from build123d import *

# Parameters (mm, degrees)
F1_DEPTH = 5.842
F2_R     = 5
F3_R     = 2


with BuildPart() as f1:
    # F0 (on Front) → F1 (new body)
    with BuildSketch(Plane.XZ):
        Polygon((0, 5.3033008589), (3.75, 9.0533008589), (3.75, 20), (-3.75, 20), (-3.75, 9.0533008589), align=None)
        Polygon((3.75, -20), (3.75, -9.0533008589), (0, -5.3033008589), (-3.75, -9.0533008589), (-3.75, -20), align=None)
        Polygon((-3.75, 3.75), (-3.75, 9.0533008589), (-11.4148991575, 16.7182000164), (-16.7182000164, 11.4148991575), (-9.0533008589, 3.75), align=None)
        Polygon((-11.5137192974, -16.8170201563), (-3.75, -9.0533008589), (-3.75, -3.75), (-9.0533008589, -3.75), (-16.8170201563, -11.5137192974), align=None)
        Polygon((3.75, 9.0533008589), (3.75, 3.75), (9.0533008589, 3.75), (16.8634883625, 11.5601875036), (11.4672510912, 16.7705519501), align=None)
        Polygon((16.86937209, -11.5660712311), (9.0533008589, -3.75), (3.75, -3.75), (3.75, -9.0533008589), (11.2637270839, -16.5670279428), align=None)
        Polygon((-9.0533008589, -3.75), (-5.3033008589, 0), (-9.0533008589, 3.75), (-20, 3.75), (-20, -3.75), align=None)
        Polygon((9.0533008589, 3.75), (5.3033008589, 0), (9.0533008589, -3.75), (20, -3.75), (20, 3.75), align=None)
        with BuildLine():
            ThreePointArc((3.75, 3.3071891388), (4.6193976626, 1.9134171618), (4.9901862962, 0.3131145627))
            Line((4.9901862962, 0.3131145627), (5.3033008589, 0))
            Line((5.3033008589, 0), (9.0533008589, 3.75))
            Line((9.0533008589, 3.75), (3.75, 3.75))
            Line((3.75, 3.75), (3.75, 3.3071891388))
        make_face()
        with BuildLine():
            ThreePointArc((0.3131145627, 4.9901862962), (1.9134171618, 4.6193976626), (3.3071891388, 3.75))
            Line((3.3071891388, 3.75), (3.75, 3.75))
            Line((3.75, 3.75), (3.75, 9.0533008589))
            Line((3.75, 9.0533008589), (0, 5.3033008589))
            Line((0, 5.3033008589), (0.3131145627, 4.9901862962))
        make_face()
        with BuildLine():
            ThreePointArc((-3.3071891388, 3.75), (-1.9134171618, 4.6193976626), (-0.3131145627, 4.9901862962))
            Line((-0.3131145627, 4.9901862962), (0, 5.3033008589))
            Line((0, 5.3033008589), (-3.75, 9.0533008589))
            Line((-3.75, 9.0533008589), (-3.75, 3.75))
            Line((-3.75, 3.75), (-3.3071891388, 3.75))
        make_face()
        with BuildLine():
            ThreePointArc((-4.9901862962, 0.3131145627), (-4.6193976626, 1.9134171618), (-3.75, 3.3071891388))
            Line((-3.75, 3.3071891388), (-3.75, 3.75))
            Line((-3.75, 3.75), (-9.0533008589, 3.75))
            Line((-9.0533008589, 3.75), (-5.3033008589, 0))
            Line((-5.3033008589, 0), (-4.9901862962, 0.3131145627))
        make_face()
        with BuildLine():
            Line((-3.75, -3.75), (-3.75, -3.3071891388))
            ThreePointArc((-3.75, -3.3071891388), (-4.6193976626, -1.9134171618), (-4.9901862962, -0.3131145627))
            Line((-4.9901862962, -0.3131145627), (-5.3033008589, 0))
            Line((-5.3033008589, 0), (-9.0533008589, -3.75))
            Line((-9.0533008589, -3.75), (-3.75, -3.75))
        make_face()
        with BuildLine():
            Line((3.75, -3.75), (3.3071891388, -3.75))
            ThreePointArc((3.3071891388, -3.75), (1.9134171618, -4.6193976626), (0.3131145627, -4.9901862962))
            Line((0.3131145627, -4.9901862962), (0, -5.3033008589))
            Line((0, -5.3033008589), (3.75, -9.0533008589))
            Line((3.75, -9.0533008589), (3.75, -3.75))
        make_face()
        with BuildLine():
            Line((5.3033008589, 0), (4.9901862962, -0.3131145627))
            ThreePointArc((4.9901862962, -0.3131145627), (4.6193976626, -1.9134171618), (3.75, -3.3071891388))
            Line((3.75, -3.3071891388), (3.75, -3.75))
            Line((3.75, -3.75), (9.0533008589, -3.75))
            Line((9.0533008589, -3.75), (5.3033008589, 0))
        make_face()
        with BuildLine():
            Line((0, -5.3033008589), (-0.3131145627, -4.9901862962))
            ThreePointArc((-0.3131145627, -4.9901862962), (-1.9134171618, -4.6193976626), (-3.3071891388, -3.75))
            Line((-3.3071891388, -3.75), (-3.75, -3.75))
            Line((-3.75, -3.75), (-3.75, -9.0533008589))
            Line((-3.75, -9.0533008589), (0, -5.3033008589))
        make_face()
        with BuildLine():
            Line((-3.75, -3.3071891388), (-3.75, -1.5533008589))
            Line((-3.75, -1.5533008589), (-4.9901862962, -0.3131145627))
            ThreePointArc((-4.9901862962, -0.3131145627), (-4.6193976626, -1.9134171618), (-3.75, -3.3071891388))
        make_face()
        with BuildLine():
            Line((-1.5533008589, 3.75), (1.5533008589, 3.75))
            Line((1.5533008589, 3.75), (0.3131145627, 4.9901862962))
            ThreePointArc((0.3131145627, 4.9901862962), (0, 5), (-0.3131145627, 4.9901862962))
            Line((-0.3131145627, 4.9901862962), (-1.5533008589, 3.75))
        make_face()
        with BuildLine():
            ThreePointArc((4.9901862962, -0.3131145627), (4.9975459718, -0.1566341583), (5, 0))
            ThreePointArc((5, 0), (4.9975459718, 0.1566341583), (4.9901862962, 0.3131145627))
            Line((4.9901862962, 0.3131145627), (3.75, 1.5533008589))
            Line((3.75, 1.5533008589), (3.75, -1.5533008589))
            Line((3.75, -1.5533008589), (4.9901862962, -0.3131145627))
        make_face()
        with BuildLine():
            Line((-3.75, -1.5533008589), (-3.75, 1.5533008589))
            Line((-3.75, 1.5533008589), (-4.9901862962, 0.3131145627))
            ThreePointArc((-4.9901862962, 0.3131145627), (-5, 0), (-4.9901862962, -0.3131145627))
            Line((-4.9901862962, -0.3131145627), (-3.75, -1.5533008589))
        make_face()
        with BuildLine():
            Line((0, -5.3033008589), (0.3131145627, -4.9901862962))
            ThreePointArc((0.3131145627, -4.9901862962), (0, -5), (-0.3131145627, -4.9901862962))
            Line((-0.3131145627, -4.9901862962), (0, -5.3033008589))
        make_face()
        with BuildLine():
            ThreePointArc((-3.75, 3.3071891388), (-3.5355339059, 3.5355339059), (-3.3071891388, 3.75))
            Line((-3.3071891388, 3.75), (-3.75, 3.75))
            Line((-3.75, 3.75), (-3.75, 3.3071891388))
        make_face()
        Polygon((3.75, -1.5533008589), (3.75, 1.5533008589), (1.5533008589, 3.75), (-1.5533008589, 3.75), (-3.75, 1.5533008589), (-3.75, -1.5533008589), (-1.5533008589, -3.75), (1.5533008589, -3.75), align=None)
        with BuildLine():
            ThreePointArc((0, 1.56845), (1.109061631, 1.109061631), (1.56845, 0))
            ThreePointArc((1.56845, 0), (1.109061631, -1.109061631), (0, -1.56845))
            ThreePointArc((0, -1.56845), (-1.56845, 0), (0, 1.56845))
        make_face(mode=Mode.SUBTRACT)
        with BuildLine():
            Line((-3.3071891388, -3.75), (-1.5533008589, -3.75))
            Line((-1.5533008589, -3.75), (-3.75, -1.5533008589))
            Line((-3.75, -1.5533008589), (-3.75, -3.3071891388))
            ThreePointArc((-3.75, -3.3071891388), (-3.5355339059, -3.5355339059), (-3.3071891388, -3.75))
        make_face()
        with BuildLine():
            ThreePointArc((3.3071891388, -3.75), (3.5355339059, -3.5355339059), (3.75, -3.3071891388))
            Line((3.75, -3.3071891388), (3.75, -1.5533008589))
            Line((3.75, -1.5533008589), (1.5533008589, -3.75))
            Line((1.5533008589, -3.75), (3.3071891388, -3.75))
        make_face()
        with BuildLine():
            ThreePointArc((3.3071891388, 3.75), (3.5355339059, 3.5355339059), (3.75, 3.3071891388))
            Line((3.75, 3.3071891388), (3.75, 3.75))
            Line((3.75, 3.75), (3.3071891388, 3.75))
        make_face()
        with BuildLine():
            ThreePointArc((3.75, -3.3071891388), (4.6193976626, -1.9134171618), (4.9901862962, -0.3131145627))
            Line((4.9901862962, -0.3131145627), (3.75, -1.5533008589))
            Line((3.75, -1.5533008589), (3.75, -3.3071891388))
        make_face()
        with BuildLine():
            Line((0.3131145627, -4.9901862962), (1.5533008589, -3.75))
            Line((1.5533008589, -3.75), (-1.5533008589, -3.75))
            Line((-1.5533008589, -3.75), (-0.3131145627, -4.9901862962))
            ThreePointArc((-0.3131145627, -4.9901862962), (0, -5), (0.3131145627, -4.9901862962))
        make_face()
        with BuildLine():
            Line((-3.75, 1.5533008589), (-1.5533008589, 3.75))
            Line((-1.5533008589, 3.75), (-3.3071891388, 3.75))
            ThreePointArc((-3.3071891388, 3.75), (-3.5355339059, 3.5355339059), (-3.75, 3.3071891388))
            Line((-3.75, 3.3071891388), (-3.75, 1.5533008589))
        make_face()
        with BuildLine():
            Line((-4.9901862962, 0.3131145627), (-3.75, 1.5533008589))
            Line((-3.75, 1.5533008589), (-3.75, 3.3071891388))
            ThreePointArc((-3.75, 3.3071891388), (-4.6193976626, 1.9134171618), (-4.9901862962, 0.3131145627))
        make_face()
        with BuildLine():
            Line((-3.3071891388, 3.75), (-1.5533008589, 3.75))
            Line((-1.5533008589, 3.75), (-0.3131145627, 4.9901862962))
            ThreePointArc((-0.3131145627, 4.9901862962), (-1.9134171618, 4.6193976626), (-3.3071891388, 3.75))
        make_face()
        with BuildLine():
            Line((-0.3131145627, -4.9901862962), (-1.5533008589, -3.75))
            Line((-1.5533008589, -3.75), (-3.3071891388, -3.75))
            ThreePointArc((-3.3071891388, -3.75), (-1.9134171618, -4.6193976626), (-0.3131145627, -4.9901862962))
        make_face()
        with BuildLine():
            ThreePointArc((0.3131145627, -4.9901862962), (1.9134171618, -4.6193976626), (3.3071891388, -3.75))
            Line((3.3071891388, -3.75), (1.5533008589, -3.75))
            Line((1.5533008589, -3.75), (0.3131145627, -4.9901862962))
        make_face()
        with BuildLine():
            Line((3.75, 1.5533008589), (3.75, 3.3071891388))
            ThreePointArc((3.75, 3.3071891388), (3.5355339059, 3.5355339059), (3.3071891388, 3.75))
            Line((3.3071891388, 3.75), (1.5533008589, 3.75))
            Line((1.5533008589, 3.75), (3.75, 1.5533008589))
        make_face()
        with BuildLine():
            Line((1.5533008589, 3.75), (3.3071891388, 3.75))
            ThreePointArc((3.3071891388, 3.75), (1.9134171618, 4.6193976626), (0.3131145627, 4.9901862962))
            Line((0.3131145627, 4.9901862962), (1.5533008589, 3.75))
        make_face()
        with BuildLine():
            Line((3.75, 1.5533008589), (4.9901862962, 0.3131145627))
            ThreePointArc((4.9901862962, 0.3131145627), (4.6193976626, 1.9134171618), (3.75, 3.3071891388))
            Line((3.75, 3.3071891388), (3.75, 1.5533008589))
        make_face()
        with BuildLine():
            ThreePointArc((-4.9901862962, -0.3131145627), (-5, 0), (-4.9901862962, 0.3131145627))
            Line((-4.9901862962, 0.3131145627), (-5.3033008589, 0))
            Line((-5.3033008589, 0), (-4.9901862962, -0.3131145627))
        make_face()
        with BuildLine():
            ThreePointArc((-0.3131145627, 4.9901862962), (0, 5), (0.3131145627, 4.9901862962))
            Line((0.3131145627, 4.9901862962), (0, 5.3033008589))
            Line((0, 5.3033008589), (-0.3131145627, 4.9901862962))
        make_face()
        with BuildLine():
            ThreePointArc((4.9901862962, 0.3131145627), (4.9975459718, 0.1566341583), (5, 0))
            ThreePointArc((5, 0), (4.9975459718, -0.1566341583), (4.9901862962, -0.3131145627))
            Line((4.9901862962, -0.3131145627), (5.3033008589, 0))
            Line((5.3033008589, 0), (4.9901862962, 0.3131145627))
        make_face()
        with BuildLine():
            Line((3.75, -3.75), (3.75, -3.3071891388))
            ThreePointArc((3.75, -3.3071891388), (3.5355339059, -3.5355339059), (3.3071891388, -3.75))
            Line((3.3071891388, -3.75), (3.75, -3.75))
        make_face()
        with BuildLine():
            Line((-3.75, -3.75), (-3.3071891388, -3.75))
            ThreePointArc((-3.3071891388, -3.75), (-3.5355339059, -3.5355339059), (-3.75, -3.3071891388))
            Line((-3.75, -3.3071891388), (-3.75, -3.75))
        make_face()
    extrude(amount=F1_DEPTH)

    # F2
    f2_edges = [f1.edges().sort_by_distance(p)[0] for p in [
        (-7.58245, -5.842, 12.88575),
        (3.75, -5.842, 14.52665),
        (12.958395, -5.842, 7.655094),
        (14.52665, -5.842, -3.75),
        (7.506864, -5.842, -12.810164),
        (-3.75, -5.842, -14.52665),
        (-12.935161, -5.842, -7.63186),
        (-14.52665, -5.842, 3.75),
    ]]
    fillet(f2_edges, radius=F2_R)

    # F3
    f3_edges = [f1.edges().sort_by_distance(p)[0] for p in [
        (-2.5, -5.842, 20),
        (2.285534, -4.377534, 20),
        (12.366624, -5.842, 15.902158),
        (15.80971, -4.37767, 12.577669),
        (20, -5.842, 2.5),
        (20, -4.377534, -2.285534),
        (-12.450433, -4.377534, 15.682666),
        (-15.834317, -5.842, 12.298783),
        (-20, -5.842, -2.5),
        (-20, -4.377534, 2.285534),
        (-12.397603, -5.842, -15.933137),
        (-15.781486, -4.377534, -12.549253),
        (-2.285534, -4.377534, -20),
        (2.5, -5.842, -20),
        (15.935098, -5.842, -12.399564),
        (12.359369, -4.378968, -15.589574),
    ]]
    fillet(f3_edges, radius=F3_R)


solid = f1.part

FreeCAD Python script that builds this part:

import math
import FreeCAD as App
import Part
import Sketcher


def edges_at(feature, points):
    """Names of the edges that pass closest to the given points."""
    edges = feature.Shape.Edges
    near = lambda p: min(range(len(edges)), key=lambda i: edges[i].distToShape(Part.Vertex(*p))[0])
    return sorted({f"Edge{near(p) + 1}" for p in points})

doc = App.newDocument("Part")
body = doc.addObject("PartDesign::Body", "Body")

# Sketch on XZ plane
sketch1 = doc.addObject("Sketcher::SketchObject", "Sketch")
body.addObject(sketch1)
sketch1.AttachmentSupport = (doc.XZ_Plane, [""])
sketch1.MapMode = "FlatFace"
sketch1.addGeometry([
    Part.LineSegment(App.Vector(-3.75, -20, 0), App.Vector(3.75, -20, 0)),  # 0
    Part.LineSegment(App.Vector(3.75, -20, 0), App.Vector(3.75, -9.053301, 0)),  # 1
    Part.LineSegment(App.Vector(3.75, -9.053301, 0), App.Vector(11.263727, -16.567028, 0)),  # 2
    Part.LineSegment(App.Vector(11.263727, -16.567028, 0), App.Vector(16.869372, -11.566071, 0)),  # 3
    Part.LineSegment(App.Vector(16.869372, -11.566071, 0), App.Vector(9.053301, -3.75, 0)),  # 4
    Part.LineSegment(App.Vector(9.053301, -3.75, 0), App.Vector(20, -3.75, 0)),  # 5
    Part.LineSegment(App.Vector(20, -3.75, 0), App.Vector(20, 3.75, 0)),  # 6
    Part.LineSegment(App.Vector(20, 3.75, 0), App.Vector(9.053301, 3.75, 0)),  # 7
    Part.LineSegment(App.Vector(9.053301, 3.75, 0), App.Vector(16.863488, 11.560188, 0)),  # 8
    Part.LineSegment(App.Vector(16.863488, 11.560188, 0), App.Vector(11.467251, 16.770552, 0)),  # 9
    Part.LineSegment(App.Vector(11.467251, 16.770552, 0), App.Vector(3.75, 9.053301, 0)),  # 10
    Part.LineSegment(App.Vector(3.75, 9.053301, 0), App.Vector(3.75, 20, 0)),  # 11
    Part.LineSegment(App.Vector(3.75, 20, 0), App.Vector(-3.75, 20, 0)),  # 12
    Part.LineSegment(App.Vector(-3.75, 20, 0), App.Vector(-3.75, 9.053301, 0)),  # 13
    Part.LineSegment(App.Vector(-3.75, 9.053301, 0), App.Vector(-11.414899, 16.7182, 0)),  # 14
    Part.LineSegment(App.Vector(-11.414899, 16.7182, 0), App.Vector(-16.7182, 11.414899, 0)),  # 15
    Part.LineSegment(App.Vector(-16.7182, 11.414899, 0), App.Vector(-9.053301, 3.75, 0)),  # 16
    Part.LineSegment(App.Vector(-9.053301, 3.75, 0), App.Vector(-20, 3.75, 0)),  # 17
    Part.LineSegment(App.Vector(-20, 3.75, 0), App.Vector(-20, -3.75, 0)),  # 18
    Part.LineSegment(App.Vector(-20, -3.75, 0), App.Vector(-9.053301, -3.75, 0)),  # 19
    Part.LineSegment(App.Vector(-9.053301, -3.75, 0), App.Vector(-16.81702, -11.513719, 0)),  # 20
    Part.LineSegment(App.Vector(-16.81702, -11.513719, 0), App.Vector(-11.513719, -16.81702, 0)),  # 21
    Part.LineSegment(App.Vector(-11.513719, -16.81702, 0), App.Vector(-3.75, -9.053301, 0)),  # 22
    Part.LineSegment(App.Vector(-3.75, -9.053301, 0), App.Vector(-3.75, -20, 0)),  # 23
    Part.ArcOfCircle(Part.Circle(App.Vector(0, 0, 0), App.Vector(0, 0, 1), 1.56845), math.radians(90), math.radians(270)),  # 24
    Part.ArcOfCircle(Part.Circle(App.Vector(0, 0, 0), App.Vector(0, 0, 1), 1.56845), math.radians(0), math.radians(90)),  # 25
    Part.ArcOfCircle(Part.Circle(App.Vector(0, 0, 0), App.Vector(0, 0, 1), 1.56845), math.radians(-90), math.radians(0)),  # 26
], False)
sketch1.addConstraint([
    Sketcher.Constraint("Coincident", 0, 2, 1, 1),
    Sketcher.Constraint("Coincident", 1, 2, 2, 1),
    Sketcher.Constraint("Coincident", 2, 2, 3, 1),
    Sketcher.Constraint("Coincident", 3, 2, 4, 1),
    Sketcher.Constraint("Coincident", 4, 2, 5, 1),
    Sketcher.Constraint("Coincident", 5, 2, 6, 1),
    Sketcher.Constraint("Coincident", 6, 2, 7, 1),
    Sketcher.Constraint("Coincident", 7, 2, 8, 1),
    Sketcher.Constraint("Coincident", 8, 2, 9, 1),
    Sketcher.Constraint("Coincident", 9, 2, 10, 1),
    Sketcher.Constraint("Coincident", 10, 2, 11, 1),
    Sketcher.Constraint("Coincident", 11, 2, 12, 1),
    Sketcher.Constraint("Coincident", 12, 2, 13, 1),
    Sketcher.Constraint("Coincident", 13, 2, 14, 1),
    Sketcher.Constraint("Coincident", 14, 2, 15, 1),
    Sketcher.Constraint("Coincident", 15, 2, 16, 1),
    Sketcher.Constraint("Coincident", 16, 2, 17, 1),
    Sketcher.Constraint("Coincident", 17, 2, 18, 1),
    Sketcher.Constraint("Coincident", 18, 2, 19, 1),
    Sketcher.Constraint("Coincident", 19, 2, 20, 1),
    Sketcher.Constraint("Coincident", 20, 2, 21, 1),
    Sketcher.Constraint("Coincident", 21, 2, 22, 1),
    Sketcher.Constraint("Coincident", 22, 2, 23, 1),
    Sketcher.Constraint("Coincident", 23, 2, 0, 1),
    Sketcher.Constraint("Tangent", 24, 1, 25, 2),
    Sketcher.Constraint("Tangent", 25, 1, 26, 2),
    Sketcher.Constraint("Tangent", 26, 1, 24, 2),
    Sketcher.Constraint("Horizontal", 0),
    Sketcher.Constraint("Vertical", 1),
    Sketcher.Constraint("Horizontal", 5),
    Sketcher.Constraint("Vertical", 6),
    Sketcher.Constraint("Horizontal", 7),
    Sketcher.Constraint("Vertical", 11),
    Sketcher.Constraint("Horizontal", 12),
    Sketcher.Constraint("Vertical", 13),
    Sketcher.Constraint("Horizontal", 17),
    Sketcher.Constraint("Vertical", 18),
    Sketcher.Constraint("Horizontal", 19),
    Sketcher.Constraint("Vertical", 23),
    Sketcher.Constraint("Coincident", 24, 3, -1, 1),
    Sketcher.Constraint("Symmetric", 0, 2, 12, 2, -1, 1),
    Sketcher.Constraint("Symmetric", 4, 2, 16, 2, -1, 1),
    Sketcher.Constraint("Symmetric", 6, 2, 18, 2, -1, 1),
    Sketcher.Constraint("Symmetric", 10, 2, 22, 2, -1, 1),
    Sketcher.Constraint("Symmetric", 10, 2, 13, 2, -2),
    Sketcher.Constraint("Symmetric", 7, 2, 16, 2, -2),
    Sketcher.Constraint("PointOnObject", 24, 1, -2),
    Sketcher.Constraint("PointOnObject", 25, 1, -1),
    Sketcher.Constraint("PointOnObject", 26, 1, -2),
    Sketcher.Constraint("Parallel", 2, 4),
    Sketcher.Constraint("Perpendicular", 4, 8),
    Sketcher.Constraint("Parallel", 8, 10),
    Sketcher.Constraint("Perpendicular", 10, 14),
    Sketcher.Constraint("Perpendicular", 14, 15),
    Sketcher.Constraint("Perpendicular", 15, 16),
    Sketcher.Constraint("Perpendicular", 16, 20),
    Sketcher.Constraint("Perpendicular", 20, 21),
    Sketcher.Constraint("Perpendicular", 21, 22),
    Sketcher.Constraint("Horizontal", 1, 2, 22, 2),
    Sketcher.Constraint("Vertical", 16, 2, 19, 2),
    Sketcher.Constraint("Equal", 19, 1),
    Sketcher.Constraint("Equal", 12, 6),
    Sketcher.Constraint("Equal", 14, 16),
    Sketcher.Constraint("Equal", 20, 22),
    Sketcher.Constraint("DistanceX", 0, 1, 0, 2, 7.5),
    Sketcher.Constraint("DistanceY", 0, 2, -1, 1, 20.0),
    Sketcher.Constraint("Distance", 15, 7.5),
    Sketcher.Constraint("Radius", 24, 1.56845),
    Sketcher.Constraint("DistanceX", 14, 2, -1, 1, 11.414899),
    Sketcher.Constraint("Distance", 3, 7.512178),
    Sketcher.Constraint("Distance", 9, 7.501152),
    Sketcher.Constraint("Distance", 10, 10.913841),
    Sketcher.Constraint("DistanceY", 3, 2, -1, 1, 11.566071),
    Sketcher.Constraint("DistanceX", 20, 2, -1, 1, 16.81702),
])
pad1 = doc.addObject("PartDesign::Pad", "Pad")
body.addObject(pad1)
pad1.Profile = sketch1
pad1.Length = 5.842
doc.recompute()

fillet = doc.addObject("PartDesign::Fillet", "Fillet")
body.addObject(fillet)
fillet.Base = (pad1, edges_at(pad1, [
    (-7.582, -5.842, 12.886),
    (3.75, -5.842, 14.527),
    (12.958, -5.842, 7.655),
    (14.527, -5.842, -3.75),
    (7.507, -5.842, -12.81),
    (-3.75, -5.842, -14.527),
    (-12.935, -5.842, -7.632),
    (-14.527, -5.842, 3.75),
]))
fillet.Radius = 5
doc.recompute()

fillet2 = doc.addObject("PartDesign::Fillet", "Fillet001")
body.addObject(fillet2)
fillet2.Base = (fillet, edges_at(fillet, [
    (-2.5, -5.842, 20),
    (2.286, -4.378, 20),
    (12.367, -5.842, 15.902),
    (15.81, -4.378, 12.578),
    (20, -5.842, 2.5),
    (20, -4.378, -2.286),
    (-12.45, -4.378, 15.683),
    (-15.834, -5.842, 12.299),
    (-20, -5.842, -2.5),
    (-20, -4.378, 2.286),
    (-12.398, -5.842, -15.933),
    (-15.781, -4.378, -12.549),
    (-2.286, -4.378, -20),
    (2.5, -5.842, -20),
    (15.935, -5.842, -12.4),
    (12.359, -4.379, -15.59),
]))
fillet2.Radius = 2

doc.recompute()
